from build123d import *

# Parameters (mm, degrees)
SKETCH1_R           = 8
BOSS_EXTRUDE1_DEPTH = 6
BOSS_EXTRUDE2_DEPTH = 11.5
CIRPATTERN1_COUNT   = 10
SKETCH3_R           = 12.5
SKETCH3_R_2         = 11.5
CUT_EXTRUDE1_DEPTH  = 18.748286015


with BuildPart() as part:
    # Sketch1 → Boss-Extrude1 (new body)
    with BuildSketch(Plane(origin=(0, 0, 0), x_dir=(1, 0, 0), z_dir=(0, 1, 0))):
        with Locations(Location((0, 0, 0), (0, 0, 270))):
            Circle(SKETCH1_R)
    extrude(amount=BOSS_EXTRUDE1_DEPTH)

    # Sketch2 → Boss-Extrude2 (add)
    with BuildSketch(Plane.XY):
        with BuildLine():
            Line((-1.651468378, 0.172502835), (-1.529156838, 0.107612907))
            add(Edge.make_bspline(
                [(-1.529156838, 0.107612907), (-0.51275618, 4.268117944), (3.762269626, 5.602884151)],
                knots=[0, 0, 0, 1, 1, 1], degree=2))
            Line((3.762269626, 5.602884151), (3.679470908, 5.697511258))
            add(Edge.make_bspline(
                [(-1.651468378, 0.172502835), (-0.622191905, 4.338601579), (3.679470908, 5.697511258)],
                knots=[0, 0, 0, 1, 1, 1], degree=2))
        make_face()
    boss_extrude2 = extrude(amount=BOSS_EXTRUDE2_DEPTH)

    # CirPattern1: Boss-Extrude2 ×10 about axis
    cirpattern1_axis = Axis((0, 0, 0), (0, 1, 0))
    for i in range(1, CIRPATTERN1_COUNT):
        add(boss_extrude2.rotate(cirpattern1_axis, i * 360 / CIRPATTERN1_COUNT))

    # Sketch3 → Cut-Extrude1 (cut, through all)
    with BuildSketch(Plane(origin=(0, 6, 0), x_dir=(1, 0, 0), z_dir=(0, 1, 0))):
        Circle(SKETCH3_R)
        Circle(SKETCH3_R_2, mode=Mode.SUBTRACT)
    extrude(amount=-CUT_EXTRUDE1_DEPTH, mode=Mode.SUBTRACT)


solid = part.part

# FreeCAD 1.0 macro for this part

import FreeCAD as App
import Part
import Sketcher

V = App.Vector

doc = App.newDocument("Part")
body = doc.addObject("PartDesign::Body", "Body")

# Sketch on XZ plane
sketch1 = doc.addObject("Sketcher::SketchObject", "Sketch")
body.addObject(sketch1)
sketch1.AttachmentSupport = (doc.XZ_Plane, [""])
sketch1.MapMode = "FlatFace"
sketch1.addGeometry(Part.Circle(V(0, 0, 0), V(0, 0, 1), 8), False)
sketch1.addConstraint(Sketcher.Constraint("Coincident", 0, 3, -1, 1))
sketch1.addConstraint(Sketcher.Constraint("Diameter", 0, 16.0))
pad1 = doc.addObject("PartDesign::Pad", "Pad")
body.addObject(pad1)
pad1.Profile = sketch1
pad1.Length = 6
pad1.Reversed = True

# Sketch on XY plane
sketch2 = doc.addObject("Sketcher::SketchObject", "Sketch001")
body.addObject(sketch2)
sketch2.AttachmentSupport = (doc.XY_Plane, [""])
sketch2.MapMode = "FlatFace"
sketch2.addGeometry(Part.LineSegment(V(-1.651468, 0.172503, 0), V(-1.529157, 0.107613, 0)), False)
sketch2.addGeometry(Part.BSplineCurve([V(-1.529157, 0.107613, 0), V(-0.512756, 4.268118, 0), V(3.76227, 5.602884, 0)], [3, 3], [0, 1], False, 2, [1, 1, 1], False), False)
sketch2.addGeometry(Part.LineSegment(V(3.76227, 5.602884, 0), V(3.679471, 5.697511, 0)), False)
sketch2.addGeometry(Part.BSplineCurve([V(-1.651468, 0.172503, 0), V(-0.622192, 4.338602, 0), V(3.679471, 5.697511, 0)], [3, 3], [0, 1], False, 2, [1, 1, 1], False), False)
sketch2.addConstraint(Sketcher.Constraint("Block", 1))
sketch2.addConstraint(Sketcher.Constraint("Block", 3))
sketch2.addConstraint(Sketcher.Constraint("Coincident", 0, 2, 1, 1))
sketch2.addConstraint(Sketcher.Constraint("Coincident", 1, 2, 2, 1))
sketch2.addConstraint(Sketcher.Constraint("Coincident", 2, 2, 3, 2))
sketch2.addConstraint(Sketcher.Constraint("Coincident", 3, 1, 0, 1))
pad2 = doc.addObject("PartDesign::Pad", "Pad001")
body.addObject(pad2)
pad2.Profile = sketch2
pad2.Length = 11.5
doc.recompute()

polarpattern = doc.addObject("PartDesign::PolarPattern", "PolarPattern")
body.addObject(polarpattern)
polarpattern.Originals = [pad2]
polarpattern.Axis = (doc.Y_Axis, [""])
polarpattern.Angle = 360
polarpattern.Occurrences = 10
body.Tip = polarpattern

# Sketch on XZ plane
sketch3 = doc.addObject("Sketcher::SketchObject", "Sketch002")
body.addObject(sketch3)
sketch3.AttachmentSupport = (doc.XZ_Plane, [""])
sketch3.MapMode = "FlatFace"
sketch3.AttachmentOffset = App.Placement(V(0, 0, -6), App.Rotation())
sketch3.addGeometry(Part.Circle(V(0, 0, 0), V(0, 0, 1), 12.5), False)
sketch3.addGeometry(Part.Circle(V(0, 0, 0), V(0, 0, 1), 11.5), False)
sketch3.addConstraint(Sketcher.Constraint("Coincident", 0, 3, -1, 1))
sketch3.addConstraint(Sketcher.Constraint("Coincident", 1, 3, -1, 1))
sketch3.addConstraint(Sketcher.Constraint("Diameter", 0, 25.0))
sketch3.addConstraint(Sketcher.Constraint("Diameter", 1, 23.0))
pocket1 = doc.addObject("PartDesign::Pocket", "Pocket")
body.addObject(pocket1)
pocket1.Profile = sketch3
pocket1.Type = "ThroughAll"
pocket1.Reversed = True

doc.recompute()
